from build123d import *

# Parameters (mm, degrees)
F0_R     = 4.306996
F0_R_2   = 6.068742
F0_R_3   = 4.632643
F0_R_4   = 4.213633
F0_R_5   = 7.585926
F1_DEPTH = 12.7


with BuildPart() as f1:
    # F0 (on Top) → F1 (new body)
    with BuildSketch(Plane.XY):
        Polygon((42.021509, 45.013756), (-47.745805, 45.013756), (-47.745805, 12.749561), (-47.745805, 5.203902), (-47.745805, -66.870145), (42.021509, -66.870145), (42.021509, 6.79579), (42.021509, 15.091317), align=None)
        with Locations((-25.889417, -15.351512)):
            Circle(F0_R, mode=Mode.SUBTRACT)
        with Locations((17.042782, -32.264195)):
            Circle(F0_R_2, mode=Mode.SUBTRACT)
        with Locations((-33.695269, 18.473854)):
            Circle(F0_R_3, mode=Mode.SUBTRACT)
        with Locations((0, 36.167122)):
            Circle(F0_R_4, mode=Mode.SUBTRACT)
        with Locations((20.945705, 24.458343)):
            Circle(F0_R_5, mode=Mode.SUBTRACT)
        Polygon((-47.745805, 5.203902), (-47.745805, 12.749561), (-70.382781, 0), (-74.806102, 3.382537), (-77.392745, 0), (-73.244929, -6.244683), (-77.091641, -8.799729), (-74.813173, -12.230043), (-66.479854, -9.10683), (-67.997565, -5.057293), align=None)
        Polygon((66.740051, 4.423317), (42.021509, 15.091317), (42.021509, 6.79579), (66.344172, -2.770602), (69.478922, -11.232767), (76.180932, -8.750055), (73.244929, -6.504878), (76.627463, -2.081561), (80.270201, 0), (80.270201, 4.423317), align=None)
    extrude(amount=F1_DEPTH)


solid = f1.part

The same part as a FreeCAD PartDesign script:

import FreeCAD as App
import Part
import Sketcher
Q = App.Units.Quantity

doc = App.newDocument("Part")
params = doc.addObject("Spreadsheet::Sheet", "Params")
for row, (alias, value) in enumerate([
    ("pad1_length", "0.5 in"),
], start=1):
    params.set(f"A{row}", alias)
    params.set(f"B{row}", "=" + value)
    params.setAlias(f"B{row}", alias)

body = doc.addObject("PartDesign::Body", "Body")

sketch1 = doc.addObject("Sketcher::SketchObject", "Sketch")
body.addObject(sketch1)
sketch1.AttachmentSupport = (doc.XY_Plane, [""])
sketch1.MapMode = "FlatFace"
sketch1.addGeometry([
    Part.LineSegment(App.Vector(42.021509, 45.013756, 0), App.Vector(-47.745805, 45.013756, 0)),
    Part.LineSegment(App.Vector(-47.745805, 45.013756, 0), App.Vector(-47.745805, 12.749561, 0)),
    Part.LineSegment(App.Vector(-47.745805, 12.749561, 0), App.Vector(-70.382781, 0, 0)),
    Part.LineSegment(App.Vector(-70.382781, 0, 0), App.Vector(-74.806102, 3.382537, 0)),
    Part.LineSegment(App.Vector(-74.806102, 3.382537, 0), App.Vector(-77.392745, 0, 0)),
    Part.LineSegment(App.Vector(-77.392745, 0, 0), App.Vector(-73.244929, -6.244683, 0)),
    Part.LineSegment(App.Vector(-73.244929, -6.244683, 0), App.Vector(-77.091641, -8.799729, 0)),
    Part.LineSegment(App.Vector(-77.091641, -8.799729, 0), App.Vector(-74.813173, -12.230043, 0)),
    Part.LineSegment(App.Vector(-74.813173, -12.230043, 0), App.Vector(-66.479854, -9.10683, 0)),
    Part.LineSegment(App.Vector(-66.479854, -9.10683, 0), App.Vector(-67.997565, -5.057293, 0)),
    Part.LineSegment(App.Vector(-67.997565, -5.057293, 0), App.Vector(-47.745805, 5.203902, 0)),
    Part.LineSegment(App.Vector(-47.745805, 5.203902, 0), App.Vector(-47.745805, -66.870145, 0)),
    Part.LineSegment(App.Vector(-47.745805, -66.870145, 0), App.Vector(42.021509, -66.870145, 0)),
    Part.LineSegment(App.Vector(42.021509, -66.870145, 0), App.Vector(42.021509, 6.79579, 0)),
    Part.LineSegment(App.Vector(42.021509, 6.79579, 0), App.Vector(66.344172, -2.770602, 0)),
    Part.LineSegment(App.Vector(66.344172, -2.770602, 0), App.Vector(69.478922, -11.232767, 0)),
    Part.LineSegment(App.Vector(69.478922, -11.232767, 0), App.Vector(76.180932, -8.750055, 0)),
    Part.LineSegment(App.Vector(76.180932, -8.750055, 0), App.Vector(73.244929, -6.504878, 0)),
    Part.LineSegment(App.Vector(73.244929, -6.504878, 0), App.Vector(76.627463, -2.081561, 0)),
    Part.LineSegment(App.Vector(76.627463, -2.081561, 0), App.Vector(80.270201, 0, 0)),
    Part.LineSegment(App.Vector(80.270201, 0, 0), App.Vector(80.270201, 4.423317, 0)),
    Part.LineSegment(App.Vector(80.270201, 4.423317, 0), App.Vector(66.740051, 4.423317, 0)),
    Part.LineSegment(App.Vector(66.740051, 4.423317, 0), App.Vector(42.021509, 15.091317, 0)),
    Part.LineSegment(App.Vector(42.021509, 15.091317, 0), App.Vector(42.021509, 45.013756, 0)),
    Part.Circle(App.Vector(-25.889417, -15.351512, 0), App.Vector(0, 0, 1), 4.306996),
    Part.Circle(App.Vector(17.042782, -32.264195, 0), App.Vector(0, 0, 1), 6.068742),
    Part.Circle(App.Vector(-33.695269, 18.473854, 0), App.Vector(0, 0, 1), 4.632643),
    Part.Circle(App.Vector(0, 36.167122, 0), App.Vector(0, 0, 1), 4.213633),
    Part.Circle(App.Vector(20.945705, 24.458343, 0), App.Vector(0, 0, 1), 7.585926),
], False)
sketch1.addConstraint([
    Sketcher.Constraint("Coincident", 0, 2, 1, 1),
    Sketcher.Constraint("Coincident", 1, 2, 2, 1),
    Sketcher.Constraint("Coincident", 2, 2, 3, 1),
    Sketcher.Constraint("Coincident", 3, 2, 4, 1),
    Sketcher.Constraint("Coincident", 4, 2, 5, 1),
    Sketcher.Constraint("Coincident", 5, 2, 6, 1),
    Sketcher.Constraint("Coincident", 6, 2, 7, 1),
    Sketcher.Constraint("Coincident", 7, 2, 8, 1),
    Sketcher.Constraint("Coincident", 8, 2, 9, 1),
    Sketcher.Constraint("Coincident", 9, 2, 10, 1),
    Sketcher.Constraint("Coincident", 10, 2, 11, 1),
    Sketcher.Constraint("Coincident", 11, 2, 12, 1),
    Sketcher.Constraint("Coincident", 12, 2, 13, 1),
    Sketcher.Constraint("Coincident", 13, 2, 14, 1),
    Sketcher.Constraint("Coincident", 14, 2, 15, 1),
    Sketcher.Constraint("Coincident", 15, 2, 16, 1),
    Sketcher.Constraint("Coincident", 16, 2, 17, 1),
    Sketcher.Constraint("Coincident", 17, 2, 18, 1),
    Sketcher.Constraint("Coincident", 18, 2, 19, 1),
    Sketcher.Constraint("Coincident", 19, 2, 20, 1),
    Sketcher.Constraint("Coincident", 20, 2, 21, 1),
    Sketcher.Constraint("Coincident", 21, 2, 22, 1),
    Sketcher.Constraint("Coincident", 22, 2, 23, 1),
    Sketcher.Constraint("Coincident", 23, 2, 0, 1),
    Sketcher.Constraint("Horizontal", 0),
    Sketcher.Constraint("Vertical", 1),
    Sketcher.Constraint("Vertical", 11),
    Sketcher.Constraint("Horizontal", 12),
    Sketcher.Constraint("Vertical", 13),
    Sketcher.Constraint("Vertical", 20),
    Sketcher.Constraint("Horizontal", 21),
    Sketcher.Constraint("Vertical", 23),
    Sketcher.Constraint("PointOnObject", 27, 3, -2),
    Sketcher.Constraint("PointOnObject", 2, 2, -1),
    Sketcher.Constraint("PointOnObject", 4, 2, -1),
    Sketcher.Constraint("PointOnObject", 19, 2, -1),
    Sketcher.Constraint("Perpendicular", 3, 4),
    Sketcher.Constraint("Perpendicular", 5, 6),
    Sketcher.Constraint("Perpendicular", 6, 7),
    Sketcher.Constraint("Perpendicular", 8, 9),
    Sketcher.Constraint("Perpendicular", 15, 16),
    Sketcher.Constraint("Perpendicular", 4, 17),
    Sketcher.Constraint("Perpendicular", 17, 18),
    Sketcher.Constraint("Vertical", 1, 2, 10, 2),
    Sketcher.Constraint("Vertical", 13, 2, 22, 2),
    Sketcher.Constraint("DistanceY", 21, 2, 22, 2, Q("0.42 in")),
    Sketcher.Constraint("Diameter", 24, 8.613992),
    Sketcher.Constraint("Diameter", 25, 12.137484),
    Sketcher.Constraint("Diameter", 26, 9.265286),
    Sketcher.Constraint("Diameter", 27, 8.427266),
    Sketcher.Constraint("Diameter", 28, 15.171852),
    Sketcher.Constraint("DistanceX", 4, 2, 5, 2, Q("0.1632998 in")),
    Sketcher.Constraint("Distance", 4, 4.258201),
    Sketcher.Constraint("DistanceX", 21, 2, 21, 1, 13.53015),
    Sketcher.Constraint("DistanceY", 23, 1, 23, 2, 29.922439),
    Sketcher.Constraint("DistanceX", 3, 2, -1, 1, 74.806102),
    Sketcher.Constraint("DistanceY", 14, 2, -1, 1, 2.770602),
    Sketcher.Constraint("DistanceX", -1, 1, 19, 2, 80.270201),
    Sketcher.Constraint("DistanceX", 24, 3, 25, 3, 42.932199),
    Sketcher.Constraint("DistanceY", 8, 2, 6, 2, 0.307101),
    Sketcher.Constraint("DistanceY", 11, 2, 7, 2, 54.640102),
    Sketcher.Constraint("DistanceY", 24, 3, 13, 2, 22.147302),
    Sketcher.Constraint("DistanceY", 16, 2, 28, 3, 33.208398),
    Sketcher.Constraint("Distance", 6, 4.617949),
    Sketcher.Constraint("Distance", 14, 26.136331),
    Sketcher.Constraint("Distance", 15, 9.024128),
    Sketcher.Constraint("Distance", 17, 3.69607),
    Sketcher.Constraint("DistanceX", 0, 2, 0, 1, 89.767314),
    Sketcher.Constraint("DistanceY", 1, 2, 1, 1, 32.264195),
    Sketcher.Constraint("DistanceY", 11, 2, 11, 1, 72.074047),
    Sketcher.Constraint("DistanceY", 13, 1, 13, 2, 73.665935),
    Sketcher.Constraint("DistanceY", 20, 1, 20, 2, 4.423317),
    Sketcher.Constraint("DistanceX", -1, 1, 25, 3, 17.042782),
    Sketcher.Constraint("DistanceX", 26, 3, -1, 1, 33.695269),
    Sketcher.Constraint("DistanceX", 2, 2, -1, 1, 70.382781),
    Sketcher.Constraint("DistanceX", 6, 2, -1, 1, 77.091641),
    Sketcher.Constraint("DistanceX", -1, 1, 12, 2, 42.021509),
    Sketcher.Constraint("DistanceY", -1, 1, 13, 2, 6.79579),
    Sketcher.Constraint("DistanceX", -1, 1, 15, 2, 69.478922),
    Sketcher.Constraint("DistanceX", -1, 1, 16, 2, 76.180932),
    Sketcher.Constraint("DistanceY", 18, 2, -1, 1, 2.081561),
    Sketcher.Constraint("DistanceY", 25, 3, 26, 3, 50.738049),
    Sketcher.Constraint("DistanceY", 26, 3, 27, 3, 17.693268),
    Sketcher.Constraint("DistanceY", 28, 3, 27, 3, 11.708779),
    Sketcher.Constraint("DistanceX", 24, 3, 28, 3, 46.835122),
    Sketcher.Constraint("DistanceX", 7, 2, 8, 2, 8.333319),
    Sketcher.Constraint("DistanceX", 9, 2, 8, 2, 1.517711),
])
pad1 = doc.addObject("PartDesign::Pad", "Pad")
body.addObject(pad1)
pad1.Profile = sketch1
pad1.setExpression("Length", "Params.pad1_length")

doc.recompute()
